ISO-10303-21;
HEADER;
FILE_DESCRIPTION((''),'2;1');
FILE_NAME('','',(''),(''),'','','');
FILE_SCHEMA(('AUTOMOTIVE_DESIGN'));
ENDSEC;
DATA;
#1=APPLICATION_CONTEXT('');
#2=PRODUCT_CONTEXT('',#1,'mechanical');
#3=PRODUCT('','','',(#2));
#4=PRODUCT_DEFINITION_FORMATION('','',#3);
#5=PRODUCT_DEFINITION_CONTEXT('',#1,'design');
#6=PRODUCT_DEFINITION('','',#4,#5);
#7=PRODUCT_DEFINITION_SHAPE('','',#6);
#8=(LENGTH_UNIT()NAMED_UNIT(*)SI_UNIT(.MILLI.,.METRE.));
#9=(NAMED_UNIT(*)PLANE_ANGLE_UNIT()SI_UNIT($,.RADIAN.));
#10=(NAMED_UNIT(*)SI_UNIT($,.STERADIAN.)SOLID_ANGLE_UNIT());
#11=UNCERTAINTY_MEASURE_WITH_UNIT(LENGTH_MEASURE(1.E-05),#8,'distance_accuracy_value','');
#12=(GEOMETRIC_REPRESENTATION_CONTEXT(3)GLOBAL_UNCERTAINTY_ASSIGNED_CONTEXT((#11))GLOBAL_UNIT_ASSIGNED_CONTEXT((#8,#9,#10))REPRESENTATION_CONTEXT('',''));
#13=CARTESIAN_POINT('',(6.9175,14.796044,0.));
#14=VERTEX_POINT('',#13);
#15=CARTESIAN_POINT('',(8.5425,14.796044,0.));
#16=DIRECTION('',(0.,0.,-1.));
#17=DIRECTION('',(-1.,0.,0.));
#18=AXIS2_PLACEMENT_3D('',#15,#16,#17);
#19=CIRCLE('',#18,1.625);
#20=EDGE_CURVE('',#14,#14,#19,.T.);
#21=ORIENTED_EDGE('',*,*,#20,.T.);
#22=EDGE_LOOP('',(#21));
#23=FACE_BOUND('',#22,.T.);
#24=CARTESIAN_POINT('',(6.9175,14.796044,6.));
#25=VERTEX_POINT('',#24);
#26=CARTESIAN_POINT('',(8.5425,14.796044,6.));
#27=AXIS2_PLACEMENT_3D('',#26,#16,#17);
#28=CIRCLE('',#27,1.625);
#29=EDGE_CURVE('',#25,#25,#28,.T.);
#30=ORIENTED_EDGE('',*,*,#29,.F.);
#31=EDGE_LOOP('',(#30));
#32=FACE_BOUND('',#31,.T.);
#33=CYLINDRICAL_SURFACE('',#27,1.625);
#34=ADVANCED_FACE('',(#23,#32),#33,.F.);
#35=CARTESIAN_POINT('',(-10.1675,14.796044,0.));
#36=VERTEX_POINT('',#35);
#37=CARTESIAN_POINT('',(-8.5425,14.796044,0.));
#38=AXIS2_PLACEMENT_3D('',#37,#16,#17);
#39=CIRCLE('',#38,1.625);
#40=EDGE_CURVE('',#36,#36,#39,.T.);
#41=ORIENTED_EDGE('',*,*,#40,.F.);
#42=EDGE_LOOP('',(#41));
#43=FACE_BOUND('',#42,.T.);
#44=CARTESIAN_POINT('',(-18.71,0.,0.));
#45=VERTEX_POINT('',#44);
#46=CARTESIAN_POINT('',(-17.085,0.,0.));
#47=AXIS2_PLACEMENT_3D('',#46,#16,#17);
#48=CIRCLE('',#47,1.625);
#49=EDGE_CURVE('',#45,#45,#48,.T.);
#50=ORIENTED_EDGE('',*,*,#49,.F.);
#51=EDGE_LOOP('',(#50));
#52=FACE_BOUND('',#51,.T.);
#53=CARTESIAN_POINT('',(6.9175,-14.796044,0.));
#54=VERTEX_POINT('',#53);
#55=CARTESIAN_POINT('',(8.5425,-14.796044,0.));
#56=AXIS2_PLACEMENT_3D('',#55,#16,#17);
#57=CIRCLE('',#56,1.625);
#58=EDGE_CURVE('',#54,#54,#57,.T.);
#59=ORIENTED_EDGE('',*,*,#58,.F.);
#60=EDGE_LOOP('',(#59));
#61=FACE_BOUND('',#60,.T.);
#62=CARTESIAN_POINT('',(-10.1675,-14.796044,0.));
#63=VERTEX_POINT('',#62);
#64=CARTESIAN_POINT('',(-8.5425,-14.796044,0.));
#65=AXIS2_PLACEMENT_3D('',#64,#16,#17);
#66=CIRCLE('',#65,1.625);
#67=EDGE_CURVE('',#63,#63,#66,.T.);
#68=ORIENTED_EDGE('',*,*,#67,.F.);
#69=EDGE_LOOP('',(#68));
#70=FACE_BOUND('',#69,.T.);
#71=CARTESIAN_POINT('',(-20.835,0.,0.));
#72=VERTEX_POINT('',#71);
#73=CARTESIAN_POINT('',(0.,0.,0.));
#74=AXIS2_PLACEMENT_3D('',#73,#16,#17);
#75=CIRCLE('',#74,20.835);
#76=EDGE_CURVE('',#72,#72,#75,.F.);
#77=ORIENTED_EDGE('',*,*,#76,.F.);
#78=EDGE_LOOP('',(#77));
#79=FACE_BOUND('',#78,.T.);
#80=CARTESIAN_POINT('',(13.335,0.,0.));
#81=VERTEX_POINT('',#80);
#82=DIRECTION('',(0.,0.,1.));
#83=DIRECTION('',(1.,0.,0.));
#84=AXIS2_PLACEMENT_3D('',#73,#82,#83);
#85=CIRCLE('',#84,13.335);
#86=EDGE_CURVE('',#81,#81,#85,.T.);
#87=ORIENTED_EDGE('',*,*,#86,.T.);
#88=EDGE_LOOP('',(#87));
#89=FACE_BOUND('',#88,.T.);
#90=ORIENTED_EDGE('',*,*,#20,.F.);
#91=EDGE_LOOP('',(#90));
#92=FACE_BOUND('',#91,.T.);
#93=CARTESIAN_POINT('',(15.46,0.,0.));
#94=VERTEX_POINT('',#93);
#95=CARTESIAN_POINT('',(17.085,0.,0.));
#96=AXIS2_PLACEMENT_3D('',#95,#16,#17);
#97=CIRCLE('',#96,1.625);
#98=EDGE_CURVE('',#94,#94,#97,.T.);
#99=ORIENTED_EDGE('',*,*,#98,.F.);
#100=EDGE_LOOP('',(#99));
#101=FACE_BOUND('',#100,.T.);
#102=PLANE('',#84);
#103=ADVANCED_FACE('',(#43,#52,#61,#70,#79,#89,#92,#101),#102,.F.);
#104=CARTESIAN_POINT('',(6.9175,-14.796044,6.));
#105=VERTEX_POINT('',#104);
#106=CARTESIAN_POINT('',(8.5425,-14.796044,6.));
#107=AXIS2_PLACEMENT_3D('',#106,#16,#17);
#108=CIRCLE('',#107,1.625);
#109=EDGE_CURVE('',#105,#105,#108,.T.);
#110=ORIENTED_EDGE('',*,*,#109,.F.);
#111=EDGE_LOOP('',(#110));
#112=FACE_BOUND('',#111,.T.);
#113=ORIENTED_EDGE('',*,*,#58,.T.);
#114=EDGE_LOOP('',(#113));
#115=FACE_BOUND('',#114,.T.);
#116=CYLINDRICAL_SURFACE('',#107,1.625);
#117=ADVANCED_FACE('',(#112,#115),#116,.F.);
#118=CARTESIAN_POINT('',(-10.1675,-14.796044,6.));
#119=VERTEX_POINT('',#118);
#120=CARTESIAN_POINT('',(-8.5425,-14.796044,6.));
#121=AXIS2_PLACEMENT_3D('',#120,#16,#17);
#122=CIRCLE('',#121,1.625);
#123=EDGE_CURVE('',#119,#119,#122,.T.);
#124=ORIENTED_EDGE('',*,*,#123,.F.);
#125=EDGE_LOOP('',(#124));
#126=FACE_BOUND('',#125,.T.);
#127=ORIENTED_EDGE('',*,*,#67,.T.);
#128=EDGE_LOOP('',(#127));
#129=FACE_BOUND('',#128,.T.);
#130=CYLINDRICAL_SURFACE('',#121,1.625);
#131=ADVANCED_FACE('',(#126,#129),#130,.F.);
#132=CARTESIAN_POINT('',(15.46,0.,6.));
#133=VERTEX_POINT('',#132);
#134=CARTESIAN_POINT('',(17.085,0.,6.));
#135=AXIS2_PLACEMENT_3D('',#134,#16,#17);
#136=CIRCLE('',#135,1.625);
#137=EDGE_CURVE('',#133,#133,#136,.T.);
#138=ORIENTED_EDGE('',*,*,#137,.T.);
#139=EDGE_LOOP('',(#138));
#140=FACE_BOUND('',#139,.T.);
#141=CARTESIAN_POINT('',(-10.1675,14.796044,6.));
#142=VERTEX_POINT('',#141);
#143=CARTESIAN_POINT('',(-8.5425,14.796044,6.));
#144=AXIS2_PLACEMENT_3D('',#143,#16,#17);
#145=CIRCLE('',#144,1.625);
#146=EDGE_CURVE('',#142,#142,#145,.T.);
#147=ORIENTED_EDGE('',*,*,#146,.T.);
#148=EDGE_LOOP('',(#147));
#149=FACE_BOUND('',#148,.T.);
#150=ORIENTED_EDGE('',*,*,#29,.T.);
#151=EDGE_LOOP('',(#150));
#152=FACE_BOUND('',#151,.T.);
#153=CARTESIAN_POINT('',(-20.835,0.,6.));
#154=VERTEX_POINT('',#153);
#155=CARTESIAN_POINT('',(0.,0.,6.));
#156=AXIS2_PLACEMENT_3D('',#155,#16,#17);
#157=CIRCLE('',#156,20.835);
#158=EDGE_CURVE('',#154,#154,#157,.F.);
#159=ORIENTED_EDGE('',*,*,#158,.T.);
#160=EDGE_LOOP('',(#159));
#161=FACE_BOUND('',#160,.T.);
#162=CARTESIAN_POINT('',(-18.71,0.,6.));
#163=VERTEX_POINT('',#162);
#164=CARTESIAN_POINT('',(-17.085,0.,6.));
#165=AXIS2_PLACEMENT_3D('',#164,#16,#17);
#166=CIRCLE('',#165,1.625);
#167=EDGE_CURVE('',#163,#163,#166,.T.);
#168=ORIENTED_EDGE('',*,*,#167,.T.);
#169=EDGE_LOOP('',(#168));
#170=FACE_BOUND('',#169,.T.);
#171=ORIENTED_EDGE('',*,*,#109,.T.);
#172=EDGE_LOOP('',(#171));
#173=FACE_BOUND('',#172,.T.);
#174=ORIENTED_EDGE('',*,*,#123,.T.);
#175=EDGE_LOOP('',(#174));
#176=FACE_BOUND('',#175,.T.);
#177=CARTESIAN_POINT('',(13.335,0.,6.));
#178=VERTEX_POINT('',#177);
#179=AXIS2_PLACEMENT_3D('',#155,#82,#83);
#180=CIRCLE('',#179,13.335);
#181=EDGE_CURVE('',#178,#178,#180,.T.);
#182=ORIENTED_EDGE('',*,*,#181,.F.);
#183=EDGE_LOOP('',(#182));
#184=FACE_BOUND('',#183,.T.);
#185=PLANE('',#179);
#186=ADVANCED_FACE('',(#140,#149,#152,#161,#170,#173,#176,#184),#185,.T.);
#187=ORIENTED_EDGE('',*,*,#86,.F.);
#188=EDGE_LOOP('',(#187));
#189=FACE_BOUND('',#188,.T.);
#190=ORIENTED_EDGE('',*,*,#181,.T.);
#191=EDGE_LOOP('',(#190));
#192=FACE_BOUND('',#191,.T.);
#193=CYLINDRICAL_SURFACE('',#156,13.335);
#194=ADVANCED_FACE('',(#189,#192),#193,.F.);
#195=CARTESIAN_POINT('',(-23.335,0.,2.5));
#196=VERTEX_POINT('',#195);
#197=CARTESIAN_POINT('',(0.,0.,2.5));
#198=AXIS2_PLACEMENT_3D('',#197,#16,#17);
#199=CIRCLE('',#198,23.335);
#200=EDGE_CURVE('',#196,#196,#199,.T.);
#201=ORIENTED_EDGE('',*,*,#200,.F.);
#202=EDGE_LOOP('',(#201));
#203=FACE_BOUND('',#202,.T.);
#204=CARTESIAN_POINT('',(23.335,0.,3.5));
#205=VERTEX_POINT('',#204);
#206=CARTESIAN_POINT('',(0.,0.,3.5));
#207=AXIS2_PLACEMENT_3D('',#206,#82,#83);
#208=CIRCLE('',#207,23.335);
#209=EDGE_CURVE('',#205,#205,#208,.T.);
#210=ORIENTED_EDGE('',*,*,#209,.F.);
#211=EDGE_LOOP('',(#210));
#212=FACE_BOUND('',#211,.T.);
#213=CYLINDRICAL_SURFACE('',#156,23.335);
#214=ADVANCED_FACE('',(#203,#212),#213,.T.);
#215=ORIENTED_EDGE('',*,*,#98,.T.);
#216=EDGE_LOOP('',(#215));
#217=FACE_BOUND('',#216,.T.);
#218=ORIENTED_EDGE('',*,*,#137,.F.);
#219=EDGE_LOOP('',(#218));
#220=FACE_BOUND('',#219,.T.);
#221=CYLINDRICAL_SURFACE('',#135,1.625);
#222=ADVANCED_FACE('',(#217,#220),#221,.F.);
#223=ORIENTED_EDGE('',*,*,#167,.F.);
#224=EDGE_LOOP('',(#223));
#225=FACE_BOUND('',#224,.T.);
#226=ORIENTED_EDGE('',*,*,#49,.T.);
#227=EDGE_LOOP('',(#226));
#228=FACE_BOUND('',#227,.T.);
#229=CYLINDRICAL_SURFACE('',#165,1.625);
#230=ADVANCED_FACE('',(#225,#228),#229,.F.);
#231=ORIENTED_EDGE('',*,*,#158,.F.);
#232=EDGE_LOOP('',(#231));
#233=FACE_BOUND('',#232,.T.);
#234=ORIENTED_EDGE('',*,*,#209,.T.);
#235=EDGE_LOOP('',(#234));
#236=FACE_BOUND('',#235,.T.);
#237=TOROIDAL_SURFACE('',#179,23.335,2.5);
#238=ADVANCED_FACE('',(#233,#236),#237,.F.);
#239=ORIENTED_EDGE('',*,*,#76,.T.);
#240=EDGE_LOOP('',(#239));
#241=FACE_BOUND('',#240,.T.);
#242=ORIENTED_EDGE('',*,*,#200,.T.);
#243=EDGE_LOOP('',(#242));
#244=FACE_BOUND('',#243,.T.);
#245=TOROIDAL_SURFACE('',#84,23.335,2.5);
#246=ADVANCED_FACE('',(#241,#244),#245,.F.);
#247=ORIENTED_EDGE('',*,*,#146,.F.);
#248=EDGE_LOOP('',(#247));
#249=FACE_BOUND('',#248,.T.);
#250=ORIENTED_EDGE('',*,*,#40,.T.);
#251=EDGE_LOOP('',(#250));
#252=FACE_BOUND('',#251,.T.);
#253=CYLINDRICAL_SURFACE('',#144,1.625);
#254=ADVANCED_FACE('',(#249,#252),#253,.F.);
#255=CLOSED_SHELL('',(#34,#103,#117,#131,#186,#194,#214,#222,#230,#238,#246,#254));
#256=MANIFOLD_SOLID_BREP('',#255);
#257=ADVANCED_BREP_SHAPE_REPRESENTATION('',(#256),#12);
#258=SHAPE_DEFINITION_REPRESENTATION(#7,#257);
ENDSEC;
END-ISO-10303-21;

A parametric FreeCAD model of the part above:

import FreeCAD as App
import Part
import Sketcher

V = App.Vector

doc = App.newDocument("Part")
body = doc.addObject("PartDesign::Body", "Body")

sketch1 = body.newObject("Sketcher::SketchObject", "Sketch")
sketch1.AttachmentSupport = (doc.getObject("XY_Plane"), [""])
sketch1.MapMode = "FlatFace"
sketch1.addGeometry([
    Part.Circle(V(0, 0, 0), V(0, 0, 1), 23.335),
    Part.Circle(V(0, 0, 0), V(0, 0, 1), 13.335),
], False)
sketch1.addConstraint([
    Sketcher.Constraint("Coincident", 0, 3, -1, 1),
    Sketcher.Constraint("Coincident", 1, 3, -1, 1),
    Sketcher.Constraint("Diameter", 0, 46.67),
    Sketcher.Constraint("Diameter", 1, 26.67),
])
pad1 = body.newObject("PartDesign::Pad", "Pad")
pad1.Profile = sketch1
pad1.Length = 6

sketch2 = body.newObject("Sketcher::SketchObject", "Sketch001")
sketch2.AttachmentSupport = (doc.getObject("XZ_Plane"), [""])
sketch2.MapMode = "FlatFace"
sketch2.addGeometry([
    Part.Circle(V(-23.335, 0, 0), V(0, 0, 1), 2.5),
    Part.Circle(V(-23.335, 6, 0), V(0, 0, 1), 2.5),
], False)
sketch2.addConstraint([
    Sketcher.Constraint("Equal", 0, 1),
    Sketcher.Constraint("PointOnObject", 0, 3, -1),
    Sketcher.Constraint("Vertical", 0, 3, 1, 3),
    Sketcher.Constraint("Diameter", 0, 5.0),
    Sketcher.Constraint("DistanceY", -1, 1, 1, 3, 6.0),
    Sketcher.Constraint("DistanceX", 0, 3, -1, 1, 23.335),
])
groove = body.newObject("PartDesign::Groove", "Groove")
groove.Profile = sketch2
groove.ReferenceAxis = (sketch2, ["V_Axis"])
groove.Angle = 360

sketch3 = body.newObject("Sketcher::SketchObject", "Sketch002")
sketch3.AttachmentSupport = (doc.getObject("XY_Plane"), [""])
sketch3.MapMode = "FlatFace"
sketch3.addGeometry([
    Part.Circle(V(-8.5425, 14.796044, 0), V(0, 0, 1), 1.625),
    Part.Circle(V(8.5425, 14.796044, 0), V(0, 0, 1), 1.625),
    Part.Circle(V(17.085, 0, 0), V(0, 0, 1), 1.625),
    Part.Circle(V(8.5425, -14.796044, 0), V(0, 0, 1), 1.625),
    Part.Circle(V(-8.5425, -14.796044, 0), V(0, 0, 1), 1.625),
    Part.Circle(V(-17.085, 0, 0), V(0, 0, 1), 1.625),
], False)
sketch3.addConstraint([
    Sketcher.Constraint("Equal", 0, 1),
    Sketcher.Constraint("Equal", 1, 2),
    Sketcher.Constraint("Equal", 2, 3),
    Sketcher.Constraint("Equal", 3, 4),
    Sketcher.Constraint("Equal", 4, 5),
    Sketcher.Constraint("Symmetric", 0, 3, 3, 3, -1, 1),
    Sketcher.Constraint("Symmetric", 1, 3, 4, 3, -1, 1),
    Sketcher.Constraint("Symmetric", 2, 3, 5, 3, -1, 1),
    Sketcher.Constraint("Symmetric", 0, 3, 1, 3, -2),
    Sketcher.Constraint("PointOnObject", 2, 3, -1),
    Sketcher.Constraint("Diameter", 0, 3.25),
    Sketcher.Constraint("DistanceX", 5, 3, 2, 3, 34.17),
    Sketcher.Constraint("DistanceX", 0, 3, 1, 3, 17.085),
    Sketcher.Constraint("DistanceY", 3, 3, 1, 3, 29.592088),
])
pocket1 = body.newObject("PartDesign::Pocket", "Pocket")
pocket1.Profile = sketch3
pocket1.Type = "ThroughAll"
pocket1.Reversed = True

doc.recompute()
